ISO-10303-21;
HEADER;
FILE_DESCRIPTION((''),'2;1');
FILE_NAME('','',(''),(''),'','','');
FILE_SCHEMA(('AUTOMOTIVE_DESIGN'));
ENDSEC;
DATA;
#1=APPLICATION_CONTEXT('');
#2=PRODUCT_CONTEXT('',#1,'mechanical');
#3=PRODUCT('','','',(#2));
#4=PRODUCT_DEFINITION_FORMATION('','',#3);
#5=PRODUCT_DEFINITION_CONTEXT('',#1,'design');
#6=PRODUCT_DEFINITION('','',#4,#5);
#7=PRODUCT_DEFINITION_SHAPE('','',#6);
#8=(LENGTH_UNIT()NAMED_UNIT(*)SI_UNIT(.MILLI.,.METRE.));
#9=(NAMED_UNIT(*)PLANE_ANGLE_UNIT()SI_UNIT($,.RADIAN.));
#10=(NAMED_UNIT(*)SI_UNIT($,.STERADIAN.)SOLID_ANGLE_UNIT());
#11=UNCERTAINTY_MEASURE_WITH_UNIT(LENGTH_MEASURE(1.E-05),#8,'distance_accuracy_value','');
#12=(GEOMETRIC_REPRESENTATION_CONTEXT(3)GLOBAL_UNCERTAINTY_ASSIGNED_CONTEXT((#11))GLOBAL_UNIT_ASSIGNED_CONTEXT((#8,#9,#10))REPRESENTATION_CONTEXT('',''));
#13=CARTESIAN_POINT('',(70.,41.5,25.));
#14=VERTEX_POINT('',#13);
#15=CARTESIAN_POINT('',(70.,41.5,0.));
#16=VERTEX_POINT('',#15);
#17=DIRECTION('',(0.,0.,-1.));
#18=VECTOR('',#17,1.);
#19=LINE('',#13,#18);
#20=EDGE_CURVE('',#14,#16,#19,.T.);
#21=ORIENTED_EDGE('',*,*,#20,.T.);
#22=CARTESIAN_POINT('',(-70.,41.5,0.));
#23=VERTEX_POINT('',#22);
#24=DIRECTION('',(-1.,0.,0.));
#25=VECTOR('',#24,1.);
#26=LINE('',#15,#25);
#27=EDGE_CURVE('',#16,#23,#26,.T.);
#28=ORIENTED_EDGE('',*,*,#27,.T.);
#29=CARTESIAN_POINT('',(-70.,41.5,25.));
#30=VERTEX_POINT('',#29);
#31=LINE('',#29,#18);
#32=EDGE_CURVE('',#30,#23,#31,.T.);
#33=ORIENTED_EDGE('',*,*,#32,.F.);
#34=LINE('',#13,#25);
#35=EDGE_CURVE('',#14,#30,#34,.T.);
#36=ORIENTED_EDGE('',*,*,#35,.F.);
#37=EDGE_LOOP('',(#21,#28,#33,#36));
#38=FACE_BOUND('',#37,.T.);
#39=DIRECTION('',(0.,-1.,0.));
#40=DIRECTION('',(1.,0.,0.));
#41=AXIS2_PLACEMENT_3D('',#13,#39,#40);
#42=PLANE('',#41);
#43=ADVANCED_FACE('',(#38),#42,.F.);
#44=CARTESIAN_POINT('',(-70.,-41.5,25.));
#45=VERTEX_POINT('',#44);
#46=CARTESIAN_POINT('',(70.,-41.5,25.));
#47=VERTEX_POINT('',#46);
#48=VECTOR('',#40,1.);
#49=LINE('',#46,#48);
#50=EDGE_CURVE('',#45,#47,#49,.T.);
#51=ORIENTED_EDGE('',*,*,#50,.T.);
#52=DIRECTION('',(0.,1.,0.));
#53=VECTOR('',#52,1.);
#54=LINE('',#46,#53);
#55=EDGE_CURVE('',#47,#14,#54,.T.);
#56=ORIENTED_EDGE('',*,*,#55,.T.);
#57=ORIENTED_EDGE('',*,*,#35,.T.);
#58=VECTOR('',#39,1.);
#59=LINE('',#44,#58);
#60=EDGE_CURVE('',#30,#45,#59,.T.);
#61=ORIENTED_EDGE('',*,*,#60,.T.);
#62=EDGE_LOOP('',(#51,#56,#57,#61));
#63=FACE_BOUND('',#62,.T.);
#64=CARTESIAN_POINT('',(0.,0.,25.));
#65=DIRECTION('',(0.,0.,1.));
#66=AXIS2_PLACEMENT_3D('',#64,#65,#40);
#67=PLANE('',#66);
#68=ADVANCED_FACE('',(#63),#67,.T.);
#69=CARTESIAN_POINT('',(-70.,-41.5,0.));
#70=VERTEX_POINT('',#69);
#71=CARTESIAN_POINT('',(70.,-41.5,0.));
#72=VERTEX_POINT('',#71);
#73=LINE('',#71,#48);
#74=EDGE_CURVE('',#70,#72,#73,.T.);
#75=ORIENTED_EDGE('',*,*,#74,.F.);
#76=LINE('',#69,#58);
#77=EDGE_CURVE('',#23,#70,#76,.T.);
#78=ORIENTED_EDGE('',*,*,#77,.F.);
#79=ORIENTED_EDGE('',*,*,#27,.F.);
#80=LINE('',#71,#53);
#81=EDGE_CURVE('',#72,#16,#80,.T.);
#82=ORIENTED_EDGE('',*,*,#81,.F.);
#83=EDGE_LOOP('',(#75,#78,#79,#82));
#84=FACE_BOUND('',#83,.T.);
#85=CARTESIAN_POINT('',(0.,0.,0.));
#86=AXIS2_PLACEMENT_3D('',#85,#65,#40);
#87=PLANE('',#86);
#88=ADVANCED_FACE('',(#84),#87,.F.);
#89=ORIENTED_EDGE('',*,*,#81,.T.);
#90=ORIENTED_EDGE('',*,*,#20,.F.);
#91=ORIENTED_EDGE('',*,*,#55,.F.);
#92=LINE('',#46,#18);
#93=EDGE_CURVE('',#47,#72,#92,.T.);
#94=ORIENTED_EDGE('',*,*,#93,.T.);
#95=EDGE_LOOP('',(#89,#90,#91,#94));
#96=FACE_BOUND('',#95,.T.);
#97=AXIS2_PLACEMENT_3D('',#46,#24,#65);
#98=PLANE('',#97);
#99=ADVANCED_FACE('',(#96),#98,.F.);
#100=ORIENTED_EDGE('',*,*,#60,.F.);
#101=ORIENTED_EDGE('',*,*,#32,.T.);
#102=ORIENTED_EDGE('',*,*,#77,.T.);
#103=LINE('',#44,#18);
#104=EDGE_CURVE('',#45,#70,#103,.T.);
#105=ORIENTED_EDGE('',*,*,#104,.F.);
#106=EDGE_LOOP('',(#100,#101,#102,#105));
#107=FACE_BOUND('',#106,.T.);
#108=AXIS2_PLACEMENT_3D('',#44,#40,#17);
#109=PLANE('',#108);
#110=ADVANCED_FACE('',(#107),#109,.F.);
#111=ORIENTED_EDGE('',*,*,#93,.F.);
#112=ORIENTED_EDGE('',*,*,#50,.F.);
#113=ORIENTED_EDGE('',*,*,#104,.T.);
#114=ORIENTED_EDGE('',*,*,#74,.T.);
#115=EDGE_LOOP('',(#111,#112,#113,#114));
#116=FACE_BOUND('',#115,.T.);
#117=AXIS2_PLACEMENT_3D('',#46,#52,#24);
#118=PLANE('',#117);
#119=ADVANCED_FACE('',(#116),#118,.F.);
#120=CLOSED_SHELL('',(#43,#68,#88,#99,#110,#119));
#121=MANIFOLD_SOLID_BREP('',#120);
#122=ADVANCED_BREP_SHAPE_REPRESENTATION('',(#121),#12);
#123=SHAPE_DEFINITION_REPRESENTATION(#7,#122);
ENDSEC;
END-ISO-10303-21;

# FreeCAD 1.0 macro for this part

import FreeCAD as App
import Part
import Sketcher
from FreeCAD import Vector


def add_polygon(sketch, points):
    """Adds a closed chain of lines whose ends are joined by coincident constraints."""
    first, n = sketch.GeometryCount, len(points)
    for a, b in zip(points, points[1:] + points[:1]):
        sketch.addGeometry(Part.LineSegment(App.Vector(*a, 0), App.Vector(*b, 0)), False)
    for i in range(n):
        sketch.addConstraint(Sketcher.Constraint("Coincident", first + i, 2, first + (i + 1) % n, 1))

doc = App.newDocument("Part")
params = doc.addObject("Spreadsheet::Sheet", "Params")
for row, (alias, value) in enumerate([
    ("sketch1_width", "140 mm"),
    ("sketch1_height", "83 mm"),
    ("pad1_length", "25 mm"),
], start=1):
    params.set(f"A{row}", alias)
    params.set(f"B{row}", "=" + value)
    params.setAlias(f"B{row}", alias)

body = doc.addObject("PartDesign::Body", "Body")

sketch1 = body.newObject("Sketcher::SketchObject", "Sketch")
sketch1.AttachmentSupport = (doc.getObject("XY_Plane"), [""])
sketch1.MapMode = "FlatFace"
add_polygon(sketch1, [(-70, 41.5), (-70, -41.5), (70, -41.5), (70, 41.5)])
sketch1.addConstraint([
    Sketcher.Constraint("Vertical", 0),
    Sketcher.Constraint("Horizontal", 1),
    Sketcher.Constraint("Vertical", 2),
    Sketcher.Constraint("Horizontal", 3),
    Sketcher.Constraint("Symmetric", 0, 2, 2, 2, -1, 1),
    Sketcher.Constraint("DistanceX", 1, 1, 1, 2, 140.0),
    Sketcher.Constraint("DistanceY", 0, 2, 0, 1, 83.0),
])
sketch1.setExpression("Constraints[9]", "Params.sketch1_width")
sketch1.setExpression("Constraints[10]", "Params.sketch1_height")
pad1 = body.newObject("PartDesign::Pad", "Pad")
pad1.Profile = sketch1
pad1.setExpression("Length", "Params.pad1_length")

doc.recompute()
